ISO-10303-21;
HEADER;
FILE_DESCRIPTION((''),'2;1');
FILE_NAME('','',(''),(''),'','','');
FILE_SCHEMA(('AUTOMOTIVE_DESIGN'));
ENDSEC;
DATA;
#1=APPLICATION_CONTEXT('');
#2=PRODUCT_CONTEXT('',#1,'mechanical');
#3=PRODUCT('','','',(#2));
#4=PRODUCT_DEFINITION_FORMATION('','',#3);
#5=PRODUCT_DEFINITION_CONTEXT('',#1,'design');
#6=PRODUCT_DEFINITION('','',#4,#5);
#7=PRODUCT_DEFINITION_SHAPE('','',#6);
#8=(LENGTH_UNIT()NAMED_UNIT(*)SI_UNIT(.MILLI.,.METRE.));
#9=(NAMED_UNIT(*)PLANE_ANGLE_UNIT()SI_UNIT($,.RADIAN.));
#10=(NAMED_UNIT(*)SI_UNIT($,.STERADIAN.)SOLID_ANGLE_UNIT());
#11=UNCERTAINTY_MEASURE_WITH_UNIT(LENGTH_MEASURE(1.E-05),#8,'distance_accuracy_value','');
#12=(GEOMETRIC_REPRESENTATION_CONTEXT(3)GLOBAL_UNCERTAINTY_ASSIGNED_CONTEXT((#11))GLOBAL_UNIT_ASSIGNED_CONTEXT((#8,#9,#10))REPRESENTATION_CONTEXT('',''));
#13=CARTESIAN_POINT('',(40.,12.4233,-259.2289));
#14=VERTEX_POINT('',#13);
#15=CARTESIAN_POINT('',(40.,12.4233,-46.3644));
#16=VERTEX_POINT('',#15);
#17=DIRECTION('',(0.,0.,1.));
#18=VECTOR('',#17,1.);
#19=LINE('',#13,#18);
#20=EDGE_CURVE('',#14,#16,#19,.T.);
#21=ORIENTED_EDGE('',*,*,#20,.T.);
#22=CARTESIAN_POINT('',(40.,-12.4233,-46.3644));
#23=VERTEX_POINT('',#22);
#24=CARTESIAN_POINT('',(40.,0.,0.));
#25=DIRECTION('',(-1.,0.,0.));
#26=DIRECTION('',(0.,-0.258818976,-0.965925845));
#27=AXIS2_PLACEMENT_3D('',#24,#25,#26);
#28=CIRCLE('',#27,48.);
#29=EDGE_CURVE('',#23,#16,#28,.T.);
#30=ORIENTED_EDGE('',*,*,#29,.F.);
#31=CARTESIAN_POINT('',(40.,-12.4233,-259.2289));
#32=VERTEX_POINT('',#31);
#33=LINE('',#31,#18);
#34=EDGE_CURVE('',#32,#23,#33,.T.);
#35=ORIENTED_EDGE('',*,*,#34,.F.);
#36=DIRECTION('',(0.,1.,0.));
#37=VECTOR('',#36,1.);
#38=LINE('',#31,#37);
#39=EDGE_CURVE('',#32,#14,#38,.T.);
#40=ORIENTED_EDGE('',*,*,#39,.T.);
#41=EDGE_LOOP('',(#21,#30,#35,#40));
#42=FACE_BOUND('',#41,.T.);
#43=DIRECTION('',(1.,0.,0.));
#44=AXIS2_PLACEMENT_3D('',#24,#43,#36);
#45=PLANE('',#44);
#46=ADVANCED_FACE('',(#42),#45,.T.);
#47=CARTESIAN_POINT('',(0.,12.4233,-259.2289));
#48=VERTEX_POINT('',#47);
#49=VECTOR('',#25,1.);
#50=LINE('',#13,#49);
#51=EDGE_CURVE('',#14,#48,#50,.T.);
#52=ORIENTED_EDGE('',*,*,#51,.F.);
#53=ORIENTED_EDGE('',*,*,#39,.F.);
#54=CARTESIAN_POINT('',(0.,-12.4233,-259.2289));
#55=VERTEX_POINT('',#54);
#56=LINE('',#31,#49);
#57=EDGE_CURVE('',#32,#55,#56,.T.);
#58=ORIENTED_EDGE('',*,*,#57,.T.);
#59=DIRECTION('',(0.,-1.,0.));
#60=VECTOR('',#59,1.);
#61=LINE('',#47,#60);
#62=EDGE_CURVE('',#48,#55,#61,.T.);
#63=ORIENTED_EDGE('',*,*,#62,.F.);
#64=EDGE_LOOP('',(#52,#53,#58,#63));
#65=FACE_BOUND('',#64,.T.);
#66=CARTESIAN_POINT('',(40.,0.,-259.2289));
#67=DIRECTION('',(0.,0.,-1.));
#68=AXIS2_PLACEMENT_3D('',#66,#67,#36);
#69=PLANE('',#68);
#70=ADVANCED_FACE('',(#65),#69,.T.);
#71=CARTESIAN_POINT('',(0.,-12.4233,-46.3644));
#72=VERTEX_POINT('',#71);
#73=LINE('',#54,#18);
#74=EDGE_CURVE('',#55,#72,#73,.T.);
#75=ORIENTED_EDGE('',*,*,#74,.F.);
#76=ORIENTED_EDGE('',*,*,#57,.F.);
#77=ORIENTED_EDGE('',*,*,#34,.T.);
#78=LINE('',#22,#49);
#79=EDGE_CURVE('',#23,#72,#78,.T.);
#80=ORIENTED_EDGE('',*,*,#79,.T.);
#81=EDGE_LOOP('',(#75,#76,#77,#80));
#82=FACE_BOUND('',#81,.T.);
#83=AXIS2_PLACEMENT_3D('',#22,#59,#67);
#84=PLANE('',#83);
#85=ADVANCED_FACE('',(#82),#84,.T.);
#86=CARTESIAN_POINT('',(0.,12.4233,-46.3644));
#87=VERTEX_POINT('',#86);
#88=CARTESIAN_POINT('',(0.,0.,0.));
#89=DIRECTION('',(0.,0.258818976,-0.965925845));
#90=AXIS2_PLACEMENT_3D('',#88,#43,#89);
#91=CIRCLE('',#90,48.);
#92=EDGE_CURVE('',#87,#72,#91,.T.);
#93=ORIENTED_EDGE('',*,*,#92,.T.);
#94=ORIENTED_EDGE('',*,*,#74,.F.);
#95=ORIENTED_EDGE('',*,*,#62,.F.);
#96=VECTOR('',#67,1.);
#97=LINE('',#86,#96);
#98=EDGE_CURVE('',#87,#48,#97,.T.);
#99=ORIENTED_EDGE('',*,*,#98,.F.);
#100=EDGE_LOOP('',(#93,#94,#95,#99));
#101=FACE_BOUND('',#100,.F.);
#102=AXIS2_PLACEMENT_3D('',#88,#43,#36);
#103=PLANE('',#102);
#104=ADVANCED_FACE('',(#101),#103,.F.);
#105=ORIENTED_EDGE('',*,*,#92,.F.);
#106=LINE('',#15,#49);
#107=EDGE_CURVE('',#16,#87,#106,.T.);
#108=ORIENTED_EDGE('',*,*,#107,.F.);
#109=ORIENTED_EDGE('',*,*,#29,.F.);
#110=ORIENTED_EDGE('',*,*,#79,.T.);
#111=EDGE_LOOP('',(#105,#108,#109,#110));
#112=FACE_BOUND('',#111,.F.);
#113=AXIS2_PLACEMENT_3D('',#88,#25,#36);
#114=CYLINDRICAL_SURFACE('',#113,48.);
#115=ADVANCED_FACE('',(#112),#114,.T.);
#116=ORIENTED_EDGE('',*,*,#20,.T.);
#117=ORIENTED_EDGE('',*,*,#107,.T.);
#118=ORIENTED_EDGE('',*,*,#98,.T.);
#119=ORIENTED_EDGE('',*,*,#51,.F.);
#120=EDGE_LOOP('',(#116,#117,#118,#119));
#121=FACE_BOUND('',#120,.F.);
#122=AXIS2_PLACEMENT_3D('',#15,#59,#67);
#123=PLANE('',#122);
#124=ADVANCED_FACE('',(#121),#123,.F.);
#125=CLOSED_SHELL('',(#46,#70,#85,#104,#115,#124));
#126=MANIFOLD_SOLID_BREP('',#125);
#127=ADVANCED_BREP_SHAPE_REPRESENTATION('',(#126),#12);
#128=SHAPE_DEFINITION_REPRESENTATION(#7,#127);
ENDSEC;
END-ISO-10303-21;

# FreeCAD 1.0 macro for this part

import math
import FreeCAD as App
import Part
import Sketcher

V = App.Vector

doc = App.newDocument("Part")
body = doc.addObject("PartDesign::Body", "Body")

# Sketch on YZ plane
sketch1 = body.newObject("Sketcher::SketchObject", "Sketch")
sketch1.AttachmentSupport = (doc.getObject("YZ_Plane"), [""])
sketch1.MapMode = "FlatFace"
sketch1.addGeometry(Part.Circle(V(0, 0, 0), V(0, 0, 1), 48), False)
sketch1.addConstraint(Sketcher.Constraint("Coincident", 0, 3, -1, 1))
sketch1.addConstraint(Sketcher.Constraint("Diameter", 0, 96.0))
pad1 = body.newObject("PartDesign::Pad", "Pad")
pad1.Profile = sketch1
pad1.Length = 40

# Sketch on YZ plane
sketch2 = body.newObject("Sketcher::SketchObject", "Sketch001")
sketch2.AttachmentSupport = (doc.getObject("YZ_Plane"), [""])
sketch2.MapMode = "FlatFace"
sketch2.AttachmentOffset = App.Placement(V(0, 0, 40), App.Rotation())
sketch2.addGeometry(Part.ArcOfCircle(Part.Circle(V(0, 0, 0), V(0, 0, 1), 48), math.radians(-105), math.radians(-75)), False)
sketch2.addGeometry(Part.LineSegment(V(-12, -46, 0), V(-12, -259, 0)), False)
sketch2.addGeometry(Part.LineSegment(V(-12, -259, 0), V(12, -259, 0)), False)
sketch2.addGeometry(Part.LineSegment(V(12, -259, 0), V(12, -46, 0)), False)
sketch2.addConstraint(Sketcher.Constraint("Coincident", 0, 1, 1, 1))
sketch2.addConstraint(Sketcher.Constraint("Coincident", 1, 2, 2, 1))
sketch2.addConstraint(Sketcher.Constraint("Coincident", 2, 2, 3, 1))
sketch2.addConstraint(Sketcher.Constraint("Coincident", 3, 2, 0, 2))
sketch2.addConstraint(Sketcher.Constraint("Vertical", 1))
sketch2.addConstraint(Sketcher.Constraint("Horizontal", 2))
sketch2.addConstraint(Sketcher.Constraint("Vertical", 3))
sketch2.addConstraint(Sketcher.Constraint("Coincident", 0, 3, -1, 1))
sketch2.addConstraint(Sketcher.Constraint("Horizontal", 0, 1, 3, 2))
sketch2.addConstraint(Sketcher.Constraint("Radius", 0, 48.0))
sketch2.addConstraint(Sketcher.Constraint("DistanceX", 2, 1, 2, 2, 24.8466))
sketch2.addConstraint(Sketcher.Constraint("DistanceY", 1, 2, 1, 1, 212.8645))
pad2 = body.newObject("PartDesign::Pad", "Pad001")
pad2.Profile = sketch2
pad2.Length = 40
pad2.Reversed = True

doc.recompute()
